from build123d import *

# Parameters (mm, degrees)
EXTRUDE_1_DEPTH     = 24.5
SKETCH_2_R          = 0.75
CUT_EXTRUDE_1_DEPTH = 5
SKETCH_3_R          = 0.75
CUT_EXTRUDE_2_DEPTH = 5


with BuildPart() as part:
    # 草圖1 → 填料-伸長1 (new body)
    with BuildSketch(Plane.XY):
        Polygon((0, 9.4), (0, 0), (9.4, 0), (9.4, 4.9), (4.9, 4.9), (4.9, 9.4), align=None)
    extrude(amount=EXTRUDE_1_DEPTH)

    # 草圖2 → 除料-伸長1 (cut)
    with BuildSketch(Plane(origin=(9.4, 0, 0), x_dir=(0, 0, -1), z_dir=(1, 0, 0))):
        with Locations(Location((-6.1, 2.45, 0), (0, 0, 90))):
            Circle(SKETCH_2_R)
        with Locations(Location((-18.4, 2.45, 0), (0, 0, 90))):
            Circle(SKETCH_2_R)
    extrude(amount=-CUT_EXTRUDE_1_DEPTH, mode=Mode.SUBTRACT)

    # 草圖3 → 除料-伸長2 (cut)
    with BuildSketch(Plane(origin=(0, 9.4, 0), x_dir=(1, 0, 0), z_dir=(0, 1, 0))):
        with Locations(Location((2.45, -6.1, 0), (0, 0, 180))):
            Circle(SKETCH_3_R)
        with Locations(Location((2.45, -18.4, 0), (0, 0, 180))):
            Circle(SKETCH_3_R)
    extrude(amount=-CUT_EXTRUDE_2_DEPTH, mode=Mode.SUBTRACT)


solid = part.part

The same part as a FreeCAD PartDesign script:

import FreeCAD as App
import Part
import Sketcher

doc = App.newDocument("Part")
body = doc.addObject("PartDesign::Body", "Body")

sketch1 = body.newObject("Sketcher::SketchObject", "Sketch")
sketch1.AttachmentSupport = (doc.getObject("XY_Plane"), [""])
sketch1.MapMode = "FlatFace"
sketch1.addGeometry([
    Part.LineSegment(App.Vector(0, 9.4, 0), App.Vector(0, 0, 0)),
    Part.LineSegment(App.Vector(0, 0, 0), App.Vector(9.4, 0, 0)),
    Part.LineSegment(App.Vector(9.4, 0, 0), App.Vector(9.4, 4.9, 0)),
    Part.LineSegment(App.Vector(9.4, 4.9, 0), App.Vector(4.9, 4.9, 0)),
    Part.LineSegment(App.Vector(4.9, 4.9, 0), App.Vector(4.9, 9.4, 0)),
    Part.LineSegment(App.Vector(4.9, 9.4, 0), App.Vector(0, 9.4, 0)),
], False)
sketch1.addConstraint([
    Sketcher.Constraint("Coincident", 0, 2, 1, 1),
    Sketcher.Constraint("Coincident", 1, 2, 2, 1),
    Sketcher.Constraint("Coincident", 2, 2, 3, 1),
    Sketcher.Constraint("Coincident", 3, 2, 4, 1),
    Sketcher.Constraint("Coincident", 4, 2, 5, 1),
    Sketcher.Constraint("Coincident", 5, 2, 0, 1),
    Sketcher.Constraint("Vertical", 0),
    Sketcher.Constraint("Horizontal", 1),
    Sketcher.Constraint("Vertical", 2),
    Sketcher.Constraint("Horizontal", 3),
    Sketcher.Constraint("Vertical", 4),
    Sketcher.Constraint("Horizontal", 5),
    Sketcher.Constraint("Coincident", 0, 2, -1, 1),
    Sketcher.Constraint("Equal", 1, 0),
    Sketcher.Constraint("Equal", 5, 2),
    Sketcher.Constraint("DistanceX", 1, 1, 1, 2, 9.4),
    Sketcher.Constraint("DistanceX", 3, 2, 3, 1, 4.5),
])
pad1 = body.newObject("PartDesign::Pad", "Pad")
pad1.Profile = sketch1
pad1.Length = 24.5

sketch2 = body.newObject("Sketcher::SketchObject", "Sketch001")
sketch2.AttachmentSupport = (doc.getObject("YZ_Plane"), [""])
sketch2.MapMode = "FlatFace"
sketch2.AttachmentOffset = App.Placement(App.Vector(0, 0, 9.4), App.Rotation())
sketch2.addGeometry([
    Part.Circle(App.Vector(2.45, 6.1, 0), App.Vector(0, 0, 1), 0.75),
    Part.Circle(App.Vector(2.45, 18.4, 0), App.Vector(0, 0, 1), 0.75),
], False)
sketch2.addConstraint([
    Sketcher.Constraint("Equal", 0, 1),
    Sketcher.Constraint("Vertical", 0, 3, 1, 3),
    Sketcher.Constraint("Diameter", 0, 1.5),
    Sketcher.Constraint("DistanceY", -1, 1, 0, 3, 6.1),
    Sketcher.Constraint("DistanceY", -1, 1, 1, 3, 18.4),
    Sketcher.Constraint("DistanceX", -1, 1, 0, 3, 2.45),
])
pocket1 = body.newObject("PartDesign::Pocket", "Pocket")
pocket1.Profile = sketch2
pocket1.Length = 5

sketch3 = body.newObject("Sketcher::SketchObject", "Sketch002")
sketch3.AttachmentSupport = (doc.getObject("XZ_Plane"), [""])
sketch3.MapMode = "FlatFace"
sketch3.AttachmentOffset = App.Placement(App.Vector(0, 0, -9.4), App.Rotation())
sketch3.addGeometry([
    Part.Circle(App.Vector(2.45, 6.1, 0), App.Vector(0, 0, 1), 0.75),
    Part.Circle(App.Vector(2.45, 18.4, 0), App.Vector(0, 0, 1), 0.75),
], False)
sketch3.addConstraint([
    Sketcher.Constraint("Equal", 0, 1),
    Sketcher.Constraint("Vertical", 0, 3, 1, 3),
    Sketcher.Constraint("Diameter", 0, 1.5),
    Sketcher.Constraint("DistanceY", -1, 1, 0, 3, 6.1),
    Sketcher.Constraint("DistanceY", -1, 1, 1, 3, 18.4),
    Sketcher.Constraint("DistanceX", -1, 1, 0, 3, 2.45),
])
pocket2 = body.newObject("PartDesign::Pocket", "Pocket001")
pocket2.Profile = sketch3
pocket2.Length = 5
pocket2.Reversed = True

doc.recompute()
